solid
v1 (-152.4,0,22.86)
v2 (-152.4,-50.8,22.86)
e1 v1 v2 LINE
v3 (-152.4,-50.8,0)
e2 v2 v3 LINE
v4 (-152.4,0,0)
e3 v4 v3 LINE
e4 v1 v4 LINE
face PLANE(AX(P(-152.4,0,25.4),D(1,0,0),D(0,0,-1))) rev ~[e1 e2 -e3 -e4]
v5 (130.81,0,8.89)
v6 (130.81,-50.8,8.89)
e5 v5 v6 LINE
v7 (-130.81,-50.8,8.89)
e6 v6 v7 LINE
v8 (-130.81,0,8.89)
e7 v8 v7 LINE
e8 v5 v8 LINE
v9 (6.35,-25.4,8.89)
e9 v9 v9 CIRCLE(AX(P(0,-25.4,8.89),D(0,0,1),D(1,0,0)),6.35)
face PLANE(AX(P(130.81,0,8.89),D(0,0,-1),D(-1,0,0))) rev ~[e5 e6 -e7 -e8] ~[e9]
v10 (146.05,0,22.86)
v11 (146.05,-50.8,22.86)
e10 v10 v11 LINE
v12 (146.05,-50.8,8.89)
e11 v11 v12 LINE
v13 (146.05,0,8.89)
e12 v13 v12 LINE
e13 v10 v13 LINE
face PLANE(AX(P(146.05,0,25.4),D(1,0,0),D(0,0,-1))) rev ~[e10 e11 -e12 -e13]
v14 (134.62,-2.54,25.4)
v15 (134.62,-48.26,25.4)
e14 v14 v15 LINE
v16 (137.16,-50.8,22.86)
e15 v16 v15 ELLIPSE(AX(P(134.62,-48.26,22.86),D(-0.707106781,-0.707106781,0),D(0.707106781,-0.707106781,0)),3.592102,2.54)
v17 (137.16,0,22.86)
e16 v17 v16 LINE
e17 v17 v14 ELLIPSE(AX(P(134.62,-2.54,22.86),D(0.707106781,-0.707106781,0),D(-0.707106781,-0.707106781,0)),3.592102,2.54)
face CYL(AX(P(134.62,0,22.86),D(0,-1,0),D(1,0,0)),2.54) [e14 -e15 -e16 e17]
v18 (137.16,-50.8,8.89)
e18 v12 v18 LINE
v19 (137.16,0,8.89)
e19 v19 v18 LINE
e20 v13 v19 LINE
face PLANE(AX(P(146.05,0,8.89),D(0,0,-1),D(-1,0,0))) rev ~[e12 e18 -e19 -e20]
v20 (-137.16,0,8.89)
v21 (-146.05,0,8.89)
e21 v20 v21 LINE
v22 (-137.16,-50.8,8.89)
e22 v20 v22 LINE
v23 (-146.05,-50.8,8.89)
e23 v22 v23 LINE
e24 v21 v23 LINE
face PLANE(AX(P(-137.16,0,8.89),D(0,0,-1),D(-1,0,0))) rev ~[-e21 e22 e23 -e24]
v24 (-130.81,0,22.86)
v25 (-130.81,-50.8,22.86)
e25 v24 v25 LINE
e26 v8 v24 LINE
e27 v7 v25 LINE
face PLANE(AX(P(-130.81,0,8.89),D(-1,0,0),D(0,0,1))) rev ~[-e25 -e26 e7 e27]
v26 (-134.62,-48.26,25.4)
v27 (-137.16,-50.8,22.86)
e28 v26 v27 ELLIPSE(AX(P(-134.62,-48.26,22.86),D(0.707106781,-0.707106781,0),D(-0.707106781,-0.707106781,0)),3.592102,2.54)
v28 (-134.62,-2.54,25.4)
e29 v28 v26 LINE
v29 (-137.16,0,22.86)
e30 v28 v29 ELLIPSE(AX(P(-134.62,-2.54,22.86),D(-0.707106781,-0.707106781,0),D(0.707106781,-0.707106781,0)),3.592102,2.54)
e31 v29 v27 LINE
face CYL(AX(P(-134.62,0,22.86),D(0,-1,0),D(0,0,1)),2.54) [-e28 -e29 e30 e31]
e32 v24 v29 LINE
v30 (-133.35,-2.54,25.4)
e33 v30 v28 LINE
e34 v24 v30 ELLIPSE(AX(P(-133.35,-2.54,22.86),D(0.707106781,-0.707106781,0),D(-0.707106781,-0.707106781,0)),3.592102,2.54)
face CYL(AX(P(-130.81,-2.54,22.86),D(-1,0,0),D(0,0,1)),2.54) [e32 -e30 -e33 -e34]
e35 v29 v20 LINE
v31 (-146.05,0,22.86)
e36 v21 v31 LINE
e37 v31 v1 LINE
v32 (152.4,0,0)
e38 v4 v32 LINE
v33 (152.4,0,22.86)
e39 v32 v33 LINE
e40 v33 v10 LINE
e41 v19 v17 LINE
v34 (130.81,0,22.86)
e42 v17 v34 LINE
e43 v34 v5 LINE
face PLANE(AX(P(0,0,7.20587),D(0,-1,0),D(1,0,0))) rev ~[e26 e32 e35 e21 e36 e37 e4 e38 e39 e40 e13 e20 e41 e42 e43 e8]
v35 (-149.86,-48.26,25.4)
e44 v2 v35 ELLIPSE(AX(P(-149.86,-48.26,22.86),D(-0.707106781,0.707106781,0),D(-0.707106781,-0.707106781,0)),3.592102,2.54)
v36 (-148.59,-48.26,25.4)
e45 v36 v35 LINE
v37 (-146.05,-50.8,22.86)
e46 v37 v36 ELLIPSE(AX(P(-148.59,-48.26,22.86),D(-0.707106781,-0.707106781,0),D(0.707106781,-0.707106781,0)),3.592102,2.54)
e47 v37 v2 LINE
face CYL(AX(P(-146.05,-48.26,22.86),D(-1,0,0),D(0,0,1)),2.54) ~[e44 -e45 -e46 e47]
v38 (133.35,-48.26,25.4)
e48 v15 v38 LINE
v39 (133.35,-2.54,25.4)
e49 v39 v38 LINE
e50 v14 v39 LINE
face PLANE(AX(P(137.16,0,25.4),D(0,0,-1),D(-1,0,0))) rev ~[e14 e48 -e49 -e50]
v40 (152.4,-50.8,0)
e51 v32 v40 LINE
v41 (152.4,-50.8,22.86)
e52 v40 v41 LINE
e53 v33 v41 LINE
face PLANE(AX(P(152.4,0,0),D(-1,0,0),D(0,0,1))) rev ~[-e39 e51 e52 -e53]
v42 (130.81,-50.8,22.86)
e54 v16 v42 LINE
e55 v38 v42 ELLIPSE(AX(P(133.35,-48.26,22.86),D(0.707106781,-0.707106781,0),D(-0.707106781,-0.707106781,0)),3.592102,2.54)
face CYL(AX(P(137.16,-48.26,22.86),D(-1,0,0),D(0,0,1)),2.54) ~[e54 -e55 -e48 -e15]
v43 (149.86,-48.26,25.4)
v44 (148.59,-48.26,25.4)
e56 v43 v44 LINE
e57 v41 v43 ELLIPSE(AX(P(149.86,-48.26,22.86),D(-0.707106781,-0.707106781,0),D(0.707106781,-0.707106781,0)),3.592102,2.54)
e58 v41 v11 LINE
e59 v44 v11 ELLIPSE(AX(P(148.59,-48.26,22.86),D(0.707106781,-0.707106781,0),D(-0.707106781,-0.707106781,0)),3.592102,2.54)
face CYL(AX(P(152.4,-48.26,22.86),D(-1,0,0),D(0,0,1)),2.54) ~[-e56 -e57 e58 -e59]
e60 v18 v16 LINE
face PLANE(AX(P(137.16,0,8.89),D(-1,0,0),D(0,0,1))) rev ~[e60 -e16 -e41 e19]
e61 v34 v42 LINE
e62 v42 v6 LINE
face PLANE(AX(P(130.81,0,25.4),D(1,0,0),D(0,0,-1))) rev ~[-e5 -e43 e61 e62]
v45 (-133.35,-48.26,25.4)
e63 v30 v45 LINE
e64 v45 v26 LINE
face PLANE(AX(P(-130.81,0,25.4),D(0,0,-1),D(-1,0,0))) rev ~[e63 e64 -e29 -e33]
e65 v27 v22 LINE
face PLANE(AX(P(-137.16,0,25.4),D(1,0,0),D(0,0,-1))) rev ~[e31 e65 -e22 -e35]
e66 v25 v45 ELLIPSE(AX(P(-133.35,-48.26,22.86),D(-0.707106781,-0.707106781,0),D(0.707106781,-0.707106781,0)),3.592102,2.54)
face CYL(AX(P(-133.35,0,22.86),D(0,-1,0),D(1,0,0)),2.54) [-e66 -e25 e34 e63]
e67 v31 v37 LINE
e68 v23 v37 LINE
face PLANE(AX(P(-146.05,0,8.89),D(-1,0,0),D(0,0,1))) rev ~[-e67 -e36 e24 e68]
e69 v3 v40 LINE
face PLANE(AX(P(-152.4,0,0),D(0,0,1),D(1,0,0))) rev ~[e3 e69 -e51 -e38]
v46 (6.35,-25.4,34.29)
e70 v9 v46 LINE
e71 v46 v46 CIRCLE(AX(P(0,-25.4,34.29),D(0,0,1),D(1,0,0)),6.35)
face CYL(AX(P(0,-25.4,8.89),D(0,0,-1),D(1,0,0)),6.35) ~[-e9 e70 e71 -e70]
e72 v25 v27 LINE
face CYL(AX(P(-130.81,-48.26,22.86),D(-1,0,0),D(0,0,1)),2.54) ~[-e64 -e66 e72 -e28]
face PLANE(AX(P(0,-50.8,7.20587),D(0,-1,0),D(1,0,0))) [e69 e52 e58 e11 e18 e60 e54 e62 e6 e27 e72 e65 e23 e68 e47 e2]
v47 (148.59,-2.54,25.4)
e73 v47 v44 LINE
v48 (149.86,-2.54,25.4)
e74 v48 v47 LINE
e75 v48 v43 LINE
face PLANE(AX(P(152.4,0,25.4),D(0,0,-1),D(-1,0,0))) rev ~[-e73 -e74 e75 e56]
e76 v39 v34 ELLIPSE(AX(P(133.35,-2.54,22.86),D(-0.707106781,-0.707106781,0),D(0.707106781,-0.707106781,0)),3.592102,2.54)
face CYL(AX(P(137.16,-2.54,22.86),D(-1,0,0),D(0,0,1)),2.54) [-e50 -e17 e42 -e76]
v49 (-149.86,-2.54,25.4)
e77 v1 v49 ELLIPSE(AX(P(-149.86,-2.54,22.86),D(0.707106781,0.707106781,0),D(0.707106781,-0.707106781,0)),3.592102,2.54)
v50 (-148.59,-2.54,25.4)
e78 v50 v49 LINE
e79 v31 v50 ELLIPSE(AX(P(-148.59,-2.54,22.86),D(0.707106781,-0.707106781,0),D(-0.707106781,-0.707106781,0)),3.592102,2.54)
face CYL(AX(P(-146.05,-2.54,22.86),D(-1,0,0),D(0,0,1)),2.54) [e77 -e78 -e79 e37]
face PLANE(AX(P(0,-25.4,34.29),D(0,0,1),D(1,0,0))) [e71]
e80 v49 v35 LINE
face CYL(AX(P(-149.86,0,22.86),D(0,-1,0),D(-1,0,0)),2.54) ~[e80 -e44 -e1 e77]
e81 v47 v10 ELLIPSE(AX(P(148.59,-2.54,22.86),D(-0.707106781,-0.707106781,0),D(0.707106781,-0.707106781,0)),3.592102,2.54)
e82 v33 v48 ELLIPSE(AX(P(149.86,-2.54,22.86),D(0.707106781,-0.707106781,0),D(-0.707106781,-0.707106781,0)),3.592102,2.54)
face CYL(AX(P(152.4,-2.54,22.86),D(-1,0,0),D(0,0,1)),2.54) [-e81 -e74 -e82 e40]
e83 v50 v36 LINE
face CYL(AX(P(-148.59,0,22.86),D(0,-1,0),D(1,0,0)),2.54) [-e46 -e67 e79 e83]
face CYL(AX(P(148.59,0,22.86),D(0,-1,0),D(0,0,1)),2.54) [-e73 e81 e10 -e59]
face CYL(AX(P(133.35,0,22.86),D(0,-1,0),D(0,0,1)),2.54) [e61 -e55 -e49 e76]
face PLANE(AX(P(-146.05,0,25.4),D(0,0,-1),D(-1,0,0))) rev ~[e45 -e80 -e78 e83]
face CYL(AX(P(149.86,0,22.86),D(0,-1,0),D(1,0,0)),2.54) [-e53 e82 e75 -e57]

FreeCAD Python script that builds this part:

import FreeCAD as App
import Part
import Sketcher
Q = App.Units.Quantity


def edges_at(feature, points):
    """Names of the edges that pass closest to the given points."""
    edges = feature.Shape.Edges
    near = lambda p: min(range(len(edges)), key=lambda i: edges[i].distToShape(Part.Vertex(*p))[0])
    return sorted({f"Edge{near(p) + 1}" for p in points})


def add_polygon(sketch, points):
    """Adds a closed chain of lines whose ends are joined by coincident constraints."""
    first, n = sketch.GeometryCount, len(points)
    for a, b in zip(points, points[1:] + points[:1]):
        sketch.addGeometry(Part.LineSegment(App.Vector(*a, 0), App.Vector(*b, 0)), False)
    for i in range(n):
        sketch.addConstraint(Sketcher.Constraint("Coincident", first + i, 2, first + (i + 1) % n, 1))

doc = App.newDocument("Part")
body = doc.addObject("PartDesign::Body", "Body")

# Sketch on XZ plane
sketch1 = body.newObject("Sketcher::SketchObject", "Sketch")
sketch1.AttachmentSupport = (doc.getObject("XZ_Plane"), [""])
sketch1.MapMode = "FlatFace"
add_polygon(sketch1, [(-152.4, 25.4), (-152.4, 0), (152.4, 0), (152.4, 25.4), (146.05, 25.4), (146.05, 8.89), (137.16, 8.89), (137.16, 25.4), (130.81, 25.4), (130.81, 8.89), (-130.81, 8.89), (-130.81, 25.4), (-137.16, 25.4), (-137.16, 8.89), (-146.05, 8.89), (-146.05, 25.4)])  # lines 0-15
sketch1.addConstraint(Sketcher.Constraint("Vertical", 0))
sketch1.addConstraint(Sketcher.Constraint("Horizontal", 1))
sketch1.addConstraint(Sketcher.Constraint("Vertical", 2))
sketch1.addConstraint(Sketcher.Constraint("Horizontal", 3))
sketch1.addConstraint(Sketcher.Constraint("Vertical", 4))
sketch1.addConstraint(Sketcher.Constraint("Horizontal", 5))
sketch1.addConstraint(Sketcher.Constraint("Vertical", 6))
sketch1.addConstraint(Sketcher.Constraint("Horizontal", 7))
sketch1.addConstraint(Sketcher.Constraint("Vertical", 8))
sketch1.addConstraint(Sketcher.Constraint("Horizontal", 9))
sketch1.addConstraint(Sketcher.Constraint("Vertical", 10))
sketch1.addConstraint(Sketcher.Constraint("Horizontal", 11))
sketch1.addConstraint(Sketcher.Constraint("Vertical", 12))
sketch1.addConstraint(Sketcher.Constraint("Horizontal", 13))
sketch1.addConstraint(Sketcher.Constraint("Vertical", 14))
sketch1.addConstraint(Sketcher.Constraint("Horizontal", 15))
sketch1.addConstraint(Sketcher.Constraint("Symmetric", 0, 2, 1, 2, -1, 1))
sketch1.addConstraint(Sketcher.Constraint("Symmetric", 7, 2, 10, 2, -2))
sketch1.addConstraint(Sketcher.Constraint("Symmetric", 5, 2, 12, 2, -2))
sketch1.addConstraint(Sketcher.Constraint("Symmetric", 3, 2, 14, 2, -2))
sketch1.addConstraint(Sketcher.Constraint("Horizontal", 3, 2, 6, 2))
sketch1.addConstraint(Sketcher.Constraint("Horizontal", 5, 2, 8, 2))
sketch1.addConstraint(Sketcher.Constraint("Equal", 3, 7))
sketch1.addConstraint(Sketcher.Constraint("DistanceX", 1, 1, 1, 2, Q("12 in")))
sketch1.addConstraint(Sketcher.Constraint("DistanceY", 0, 2, 0, 1, Q("1 in")))
sketch1.addConstraint(Sketcher.Constraint("DistanceX", 9, 2, 9, 1, Q("10.3 in")))
sketch1.addConstraint(Sketcher.Constraint("DistanceX", 3, 2, 3, 1, Q("0.25 in")))
sketch1.addConstraint(Sketcher.Constraint("DistanceY", 4, 2, 4, 1, Q("0.65 in")))
pad1 = body.newObject("PartDesign::Pad", "Pad")
pad1.Profile = sketch1
pad1.Length = Q("2 in")
doc.recompute()

fillet = body.newObject("PartDesign::Fillet", "Fillet")
fillet.Base = (pad1, edges_at(pad1, [
    (-146.05, -25.4, 25.4),
    (-152.4, -25.4, 25.4),
    (-149.225, 0, 25.4),
    (-149.225, -50.8, 25.4),
    (-130.81, -25.4, 25.4),
    (-137.16, -25.4, 25.4),
    (-133.985, 0, 25.4),
    (-133.985, -50.8, 25.4),
    (137.16, -25.4, 25.4),
    (130.81, -25.4, 25.4),
    (133.985, 0, 25.4),
    (133.985, -50.8, 25.4),
    (152.4, -25.4, 25.4),
    (146.05, -25.4, 25.4),
    (149.225, 0, 25.4),
    (149.225, -50.8, 25.4),
]))
fillet.Radius = Q("0.1 in")

# Sketch on XY plane
sketch2 = body.newObject("Sketcher::SketchObject", "Sketch001")
sketch2.AttachmentSupport = (doc.getObject("XY_Plane"), [""])
sketch2.MapMode = "FlatFace"
sketch2.AttachmentOffset = App.Placement(App.Vector(0, 0, 0.35 * 25.4), App.Rotation())
sketch2.addGeometry(Part.Circle(App.Vector(0, -25.4, 0), App.Vector(0, 0, 1), 6.35), False)
sketch2.addConstraint(Sketcher.Constraint("PointOnObject", 0, 3, -2))
sketch2.addConstraint(Sketcher.Constraint("Diameter", 0, Q("0.5 in")))
sketch2.addConstraint(Sketcher.Constraint("DistanceY", 0, 3, -1, 1, Q("1 in")))
pad2 = body.newObject("PartDesign::Pad", "Pad001")
pad2.Profile = sketch2
pad2.Length = Q("1 in")

doc.recompute()
